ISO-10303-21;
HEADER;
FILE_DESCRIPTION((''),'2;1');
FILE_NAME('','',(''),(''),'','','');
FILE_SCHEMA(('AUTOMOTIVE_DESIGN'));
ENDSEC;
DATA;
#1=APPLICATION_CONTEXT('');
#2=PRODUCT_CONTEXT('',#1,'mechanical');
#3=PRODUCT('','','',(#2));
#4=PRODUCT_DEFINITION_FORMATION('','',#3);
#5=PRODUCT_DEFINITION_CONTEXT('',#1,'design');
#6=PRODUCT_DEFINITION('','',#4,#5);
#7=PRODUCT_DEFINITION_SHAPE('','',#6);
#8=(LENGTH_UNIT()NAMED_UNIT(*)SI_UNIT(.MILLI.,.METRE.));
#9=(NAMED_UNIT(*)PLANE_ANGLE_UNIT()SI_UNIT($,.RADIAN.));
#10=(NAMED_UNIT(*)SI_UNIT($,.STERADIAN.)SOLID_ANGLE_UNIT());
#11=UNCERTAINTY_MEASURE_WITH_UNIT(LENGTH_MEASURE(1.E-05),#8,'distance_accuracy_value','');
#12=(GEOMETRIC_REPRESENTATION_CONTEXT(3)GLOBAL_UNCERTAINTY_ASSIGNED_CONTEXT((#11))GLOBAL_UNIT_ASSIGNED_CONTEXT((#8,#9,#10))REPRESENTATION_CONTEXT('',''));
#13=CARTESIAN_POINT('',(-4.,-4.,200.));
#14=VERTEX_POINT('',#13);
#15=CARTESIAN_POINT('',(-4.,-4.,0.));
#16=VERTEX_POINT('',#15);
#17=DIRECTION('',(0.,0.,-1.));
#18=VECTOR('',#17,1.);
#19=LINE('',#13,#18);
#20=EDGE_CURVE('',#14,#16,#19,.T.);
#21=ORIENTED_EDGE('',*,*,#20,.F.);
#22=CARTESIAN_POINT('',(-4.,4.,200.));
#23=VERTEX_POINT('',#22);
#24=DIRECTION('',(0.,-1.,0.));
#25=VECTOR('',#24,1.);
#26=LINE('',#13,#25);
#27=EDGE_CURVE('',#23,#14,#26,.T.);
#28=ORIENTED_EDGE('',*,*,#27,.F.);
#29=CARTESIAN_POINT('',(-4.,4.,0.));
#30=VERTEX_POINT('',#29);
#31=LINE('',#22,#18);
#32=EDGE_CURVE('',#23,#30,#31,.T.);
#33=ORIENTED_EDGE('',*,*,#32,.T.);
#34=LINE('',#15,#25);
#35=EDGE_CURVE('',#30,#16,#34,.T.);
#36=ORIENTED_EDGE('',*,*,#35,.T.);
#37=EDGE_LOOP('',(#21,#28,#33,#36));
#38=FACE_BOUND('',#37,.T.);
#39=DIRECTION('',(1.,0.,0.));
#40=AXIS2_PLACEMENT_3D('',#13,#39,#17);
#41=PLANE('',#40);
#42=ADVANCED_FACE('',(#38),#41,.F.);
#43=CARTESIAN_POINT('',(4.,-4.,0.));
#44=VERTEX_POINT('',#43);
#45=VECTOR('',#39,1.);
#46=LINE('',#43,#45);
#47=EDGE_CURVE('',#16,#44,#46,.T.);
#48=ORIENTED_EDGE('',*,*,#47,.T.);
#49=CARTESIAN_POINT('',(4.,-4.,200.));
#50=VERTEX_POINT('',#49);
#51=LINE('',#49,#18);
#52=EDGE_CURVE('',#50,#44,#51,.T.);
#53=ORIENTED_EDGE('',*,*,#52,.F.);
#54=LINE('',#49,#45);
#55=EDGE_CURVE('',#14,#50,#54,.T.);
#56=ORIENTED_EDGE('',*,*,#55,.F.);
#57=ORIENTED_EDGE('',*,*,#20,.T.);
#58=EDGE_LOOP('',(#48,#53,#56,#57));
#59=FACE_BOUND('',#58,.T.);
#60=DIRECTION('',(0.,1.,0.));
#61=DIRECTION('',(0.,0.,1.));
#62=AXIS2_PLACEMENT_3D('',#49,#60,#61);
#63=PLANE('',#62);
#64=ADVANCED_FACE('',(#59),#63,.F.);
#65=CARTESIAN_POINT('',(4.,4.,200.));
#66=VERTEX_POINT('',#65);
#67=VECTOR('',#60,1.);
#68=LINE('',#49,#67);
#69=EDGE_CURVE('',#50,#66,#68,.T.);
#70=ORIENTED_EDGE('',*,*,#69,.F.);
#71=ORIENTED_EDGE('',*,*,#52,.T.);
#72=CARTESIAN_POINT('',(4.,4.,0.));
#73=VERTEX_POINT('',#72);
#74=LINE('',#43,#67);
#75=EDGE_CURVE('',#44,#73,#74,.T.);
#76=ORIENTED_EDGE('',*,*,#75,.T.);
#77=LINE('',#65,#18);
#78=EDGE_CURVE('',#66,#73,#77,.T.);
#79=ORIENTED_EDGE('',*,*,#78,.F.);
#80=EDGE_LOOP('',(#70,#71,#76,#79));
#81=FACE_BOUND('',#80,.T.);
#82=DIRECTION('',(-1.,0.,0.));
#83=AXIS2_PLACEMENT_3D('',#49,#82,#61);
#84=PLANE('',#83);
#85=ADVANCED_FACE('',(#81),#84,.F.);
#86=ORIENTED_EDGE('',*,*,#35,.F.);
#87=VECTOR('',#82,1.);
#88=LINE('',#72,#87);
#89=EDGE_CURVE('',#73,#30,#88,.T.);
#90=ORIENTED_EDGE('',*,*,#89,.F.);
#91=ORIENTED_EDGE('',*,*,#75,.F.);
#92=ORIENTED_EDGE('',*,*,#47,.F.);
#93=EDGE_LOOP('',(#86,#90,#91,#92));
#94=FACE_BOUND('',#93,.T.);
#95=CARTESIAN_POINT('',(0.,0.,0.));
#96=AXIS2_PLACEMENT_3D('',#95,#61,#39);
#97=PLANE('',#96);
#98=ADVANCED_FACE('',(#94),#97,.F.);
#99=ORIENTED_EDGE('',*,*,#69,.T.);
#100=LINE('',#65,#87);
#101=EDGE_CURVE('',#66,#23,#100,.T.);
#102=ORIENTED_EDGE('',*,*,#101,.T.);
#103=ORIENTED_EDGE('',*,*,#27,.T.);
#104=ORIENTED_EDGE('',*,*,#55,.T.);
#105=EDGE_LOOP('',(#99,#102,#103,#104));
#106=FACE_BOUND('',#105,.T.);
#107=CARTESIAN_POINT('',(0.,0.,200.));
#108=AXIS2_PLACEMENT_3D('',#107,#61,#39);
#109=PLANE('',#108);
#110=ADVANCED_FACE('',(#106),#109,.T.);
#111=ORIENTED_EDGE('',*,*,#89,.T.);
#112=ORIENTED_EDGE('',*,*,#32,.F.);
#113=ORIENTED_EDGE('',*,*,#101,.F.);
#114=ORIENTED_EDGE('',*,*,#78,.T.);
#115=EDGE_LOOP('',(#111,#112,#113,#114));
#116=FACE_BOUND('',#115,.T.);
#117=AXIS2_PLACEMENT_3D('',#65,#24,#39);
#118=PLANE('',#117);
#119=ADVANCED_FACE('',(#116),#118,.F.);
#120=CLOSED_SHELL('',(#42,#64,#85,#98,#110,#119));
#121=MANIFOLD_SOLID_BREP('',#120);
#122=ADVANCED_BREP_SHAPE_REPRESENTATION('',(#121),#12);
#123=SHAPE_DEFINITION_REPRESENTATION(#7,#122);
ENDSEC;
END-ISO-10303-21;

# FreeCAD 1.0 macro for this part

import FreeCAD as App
import Part
import Sketcher


def add_polygon(sketch, points):
    """Adds a closed chain of lines whose ends are joined by coincident constraints."""
    first, n = sketch.GeometryCount, len(points)
    for a, b in zip(points, points[1:] + points[:1]):
        sketch.addGeometry(Part.LineSegment(App.Vector(*a, 0), App.Vector(*b, 0)), False)
    for i in range(n):
        sketch.addConstraint(Sketcher.Constraint("Coincident", first + i, 2, first + (i + 1) % n, 1))

doc = App.newDocument("Part")
body = doc.addObject("PartDesign::Body", "Body")

sketch1 = doc.addObject("Sketcher::SketchObject", "Sketch")
body.addObject(sketch1)
sketch1.AttachmentSupport = (doc.XY_Plane, [""])
sketch1.MapMode = "FlatFace"
add_polygon(sketch1, [(-4, 4), (-4, -4), (4, -4), (4, 4)])
sketch1.addConstraint([
    Sketcher.Constraint("Vertical", 0),
    Sketcher.Constraint("Horizontal", 1),
    Sketcher.Constraint("Vertical", 2),
    Sketcher.Constraint("Horizontal", 3),
    Sketcher.Constraint("Symmetric", 0, 2, 2, 2, -1, 1),
    Sketcher.Constraint("Equal", 3, 0),
    Sketcher.Constraint("DistanceX", 1, 1, 1, 2, 8.0),
])
pad1 = doc.addObject("PartDesign::Pad", "Pad")
body.addObject(pad1)
pad1.Profile = sketch1
pad1.Length = 200

doc.recompute()
